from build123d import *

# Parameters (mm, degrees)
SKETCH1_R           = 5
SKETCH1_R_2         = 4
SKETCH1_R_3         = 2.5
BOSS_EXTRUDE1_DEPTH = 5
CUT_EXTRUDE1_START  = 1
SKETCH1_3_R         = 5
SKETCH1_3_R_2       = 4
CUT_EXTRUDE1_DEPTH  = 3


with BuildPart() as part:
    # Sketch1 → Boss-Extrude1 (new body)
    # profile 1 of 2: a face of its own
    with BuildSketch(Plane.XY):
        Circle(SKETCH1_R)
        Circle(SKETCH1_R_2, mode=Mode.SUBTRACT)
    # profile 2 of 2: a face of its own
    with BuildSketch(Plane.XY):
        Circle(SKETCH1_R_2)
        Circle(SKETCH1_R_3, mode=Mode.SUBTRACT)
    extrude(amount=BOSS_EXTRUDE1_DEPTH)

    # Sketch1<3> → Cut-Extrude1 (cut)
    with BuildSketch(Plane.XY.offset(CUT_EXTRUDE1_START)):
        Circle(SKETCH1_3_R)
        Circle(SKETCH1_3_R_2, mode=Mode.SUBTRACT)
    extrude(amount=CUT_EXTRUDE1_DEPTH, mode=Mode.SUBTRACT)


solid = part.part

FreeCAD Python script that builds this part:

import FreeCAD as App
import Part
import Sketcher
from FreeCAD import Vector
Q = App.Units.Quantity

doc = App.newDocument("Part")
params = doc.addObject("Spreadsheet::Sheet", "Params")
for row, (alias, value) in enumerate([
    ("sketch1_diameter", "10 mm"),
    ("sketch1_diameter2", "5 mm"),
    ("pad1_length", "5 mm"),
    ("sketch2_diameter", "10 mm"),
    ("sketch2_diameter2", "8 mm"),
    ("pocket1_length", "3 mm"),
], start=1):
    params.set(f"A{row}", alias)
    params.set(f"B{row}", "=" + value)
    params.setAlias(f"B{row}", alias)

body = doc.addObject("PartDesign::Body", "Body")

# Sketch on XY plane
sketch1 = body.newObject("Sketcher::SketchObject", "Sketch")
sketch1.AttachmentSupport = (doc.getObject("XY_Plane"), [""])
sketch1.MapMode = "FlatFace"
sketch1.addGeometry([
    Part.Circle(Vector(0, 0, 0), Vector(0, 0, 1), 5),
    Part.Circle(Vector(0, 0, 0), Vector(0, 0, 1), 2.5),
], False)
sketch1.addConstraint([
    Sketcher.Constraint("Coincident", 0, 3, -1, 1),
    Sketcher.Constraint("Coincident", 1, 3, -1, 1),
    Sketcher.Constraint("Diameter", 0, Q("10 mm")),
    Sketcher.Constraint("Diameter", 1, Q("5 mm")),
])
sketch1.setExpression("Constraints[2]", "Params.sketch1_diameter")
sketch1.setExpression("Constraints[3]", "Params.sketch1_diameter2")
pad1 = body.newObject("PartDesign::Pad", "Pad")
pad1.Profile = sketch1
pad1.setExpression("Length", "Params.pad1_length")

# Sketch on XY plane
sketch2 = body.newObject("Sketcher::SketchObject", "Sketch001")
sketch2.AttachmentSupport = (doc.getObject("XY_Plane"), [""])
sketch2.MapMode = "FlatFace"
sketch2.AttachmentOffset = App.Placement(Vector(0, 0, 1), App.Rotation())
sketch2.addGeometry([
    Part.Circle(Vector(0, 0, 0), Vector(0, 0, 1), 5),
    Part.Circle(Vector(0, 0, 0), Vector(0, 0, 1), 4),
], False)
sketch2.addConstraint([
    Sketcher.Constraint("Coincident", 0, 3, -1, 1),
    Sketcher.Constraint("Coincident", 1, 3, -1, 1),
    Sketcher.Constraint("Diameter", 0, Q("10 mm")),
    Sketcher.Constraint("Diameter", 1, Q("8 mm")),
])
sketch2.setExpression("Constraints[2]", "Params.sketch2_diameter")
sketch2.setExpression("Constraints[3]", "Params.sketch2_diameter2")
pocket1 = body.newObject("PartDesign::Pocket", "Pocket")
pocket1.Profile = sketch2
pocket1.setExpression("Length", "Params.pocket1_length")
pocket1.Reversed = True

doc.recompute()
